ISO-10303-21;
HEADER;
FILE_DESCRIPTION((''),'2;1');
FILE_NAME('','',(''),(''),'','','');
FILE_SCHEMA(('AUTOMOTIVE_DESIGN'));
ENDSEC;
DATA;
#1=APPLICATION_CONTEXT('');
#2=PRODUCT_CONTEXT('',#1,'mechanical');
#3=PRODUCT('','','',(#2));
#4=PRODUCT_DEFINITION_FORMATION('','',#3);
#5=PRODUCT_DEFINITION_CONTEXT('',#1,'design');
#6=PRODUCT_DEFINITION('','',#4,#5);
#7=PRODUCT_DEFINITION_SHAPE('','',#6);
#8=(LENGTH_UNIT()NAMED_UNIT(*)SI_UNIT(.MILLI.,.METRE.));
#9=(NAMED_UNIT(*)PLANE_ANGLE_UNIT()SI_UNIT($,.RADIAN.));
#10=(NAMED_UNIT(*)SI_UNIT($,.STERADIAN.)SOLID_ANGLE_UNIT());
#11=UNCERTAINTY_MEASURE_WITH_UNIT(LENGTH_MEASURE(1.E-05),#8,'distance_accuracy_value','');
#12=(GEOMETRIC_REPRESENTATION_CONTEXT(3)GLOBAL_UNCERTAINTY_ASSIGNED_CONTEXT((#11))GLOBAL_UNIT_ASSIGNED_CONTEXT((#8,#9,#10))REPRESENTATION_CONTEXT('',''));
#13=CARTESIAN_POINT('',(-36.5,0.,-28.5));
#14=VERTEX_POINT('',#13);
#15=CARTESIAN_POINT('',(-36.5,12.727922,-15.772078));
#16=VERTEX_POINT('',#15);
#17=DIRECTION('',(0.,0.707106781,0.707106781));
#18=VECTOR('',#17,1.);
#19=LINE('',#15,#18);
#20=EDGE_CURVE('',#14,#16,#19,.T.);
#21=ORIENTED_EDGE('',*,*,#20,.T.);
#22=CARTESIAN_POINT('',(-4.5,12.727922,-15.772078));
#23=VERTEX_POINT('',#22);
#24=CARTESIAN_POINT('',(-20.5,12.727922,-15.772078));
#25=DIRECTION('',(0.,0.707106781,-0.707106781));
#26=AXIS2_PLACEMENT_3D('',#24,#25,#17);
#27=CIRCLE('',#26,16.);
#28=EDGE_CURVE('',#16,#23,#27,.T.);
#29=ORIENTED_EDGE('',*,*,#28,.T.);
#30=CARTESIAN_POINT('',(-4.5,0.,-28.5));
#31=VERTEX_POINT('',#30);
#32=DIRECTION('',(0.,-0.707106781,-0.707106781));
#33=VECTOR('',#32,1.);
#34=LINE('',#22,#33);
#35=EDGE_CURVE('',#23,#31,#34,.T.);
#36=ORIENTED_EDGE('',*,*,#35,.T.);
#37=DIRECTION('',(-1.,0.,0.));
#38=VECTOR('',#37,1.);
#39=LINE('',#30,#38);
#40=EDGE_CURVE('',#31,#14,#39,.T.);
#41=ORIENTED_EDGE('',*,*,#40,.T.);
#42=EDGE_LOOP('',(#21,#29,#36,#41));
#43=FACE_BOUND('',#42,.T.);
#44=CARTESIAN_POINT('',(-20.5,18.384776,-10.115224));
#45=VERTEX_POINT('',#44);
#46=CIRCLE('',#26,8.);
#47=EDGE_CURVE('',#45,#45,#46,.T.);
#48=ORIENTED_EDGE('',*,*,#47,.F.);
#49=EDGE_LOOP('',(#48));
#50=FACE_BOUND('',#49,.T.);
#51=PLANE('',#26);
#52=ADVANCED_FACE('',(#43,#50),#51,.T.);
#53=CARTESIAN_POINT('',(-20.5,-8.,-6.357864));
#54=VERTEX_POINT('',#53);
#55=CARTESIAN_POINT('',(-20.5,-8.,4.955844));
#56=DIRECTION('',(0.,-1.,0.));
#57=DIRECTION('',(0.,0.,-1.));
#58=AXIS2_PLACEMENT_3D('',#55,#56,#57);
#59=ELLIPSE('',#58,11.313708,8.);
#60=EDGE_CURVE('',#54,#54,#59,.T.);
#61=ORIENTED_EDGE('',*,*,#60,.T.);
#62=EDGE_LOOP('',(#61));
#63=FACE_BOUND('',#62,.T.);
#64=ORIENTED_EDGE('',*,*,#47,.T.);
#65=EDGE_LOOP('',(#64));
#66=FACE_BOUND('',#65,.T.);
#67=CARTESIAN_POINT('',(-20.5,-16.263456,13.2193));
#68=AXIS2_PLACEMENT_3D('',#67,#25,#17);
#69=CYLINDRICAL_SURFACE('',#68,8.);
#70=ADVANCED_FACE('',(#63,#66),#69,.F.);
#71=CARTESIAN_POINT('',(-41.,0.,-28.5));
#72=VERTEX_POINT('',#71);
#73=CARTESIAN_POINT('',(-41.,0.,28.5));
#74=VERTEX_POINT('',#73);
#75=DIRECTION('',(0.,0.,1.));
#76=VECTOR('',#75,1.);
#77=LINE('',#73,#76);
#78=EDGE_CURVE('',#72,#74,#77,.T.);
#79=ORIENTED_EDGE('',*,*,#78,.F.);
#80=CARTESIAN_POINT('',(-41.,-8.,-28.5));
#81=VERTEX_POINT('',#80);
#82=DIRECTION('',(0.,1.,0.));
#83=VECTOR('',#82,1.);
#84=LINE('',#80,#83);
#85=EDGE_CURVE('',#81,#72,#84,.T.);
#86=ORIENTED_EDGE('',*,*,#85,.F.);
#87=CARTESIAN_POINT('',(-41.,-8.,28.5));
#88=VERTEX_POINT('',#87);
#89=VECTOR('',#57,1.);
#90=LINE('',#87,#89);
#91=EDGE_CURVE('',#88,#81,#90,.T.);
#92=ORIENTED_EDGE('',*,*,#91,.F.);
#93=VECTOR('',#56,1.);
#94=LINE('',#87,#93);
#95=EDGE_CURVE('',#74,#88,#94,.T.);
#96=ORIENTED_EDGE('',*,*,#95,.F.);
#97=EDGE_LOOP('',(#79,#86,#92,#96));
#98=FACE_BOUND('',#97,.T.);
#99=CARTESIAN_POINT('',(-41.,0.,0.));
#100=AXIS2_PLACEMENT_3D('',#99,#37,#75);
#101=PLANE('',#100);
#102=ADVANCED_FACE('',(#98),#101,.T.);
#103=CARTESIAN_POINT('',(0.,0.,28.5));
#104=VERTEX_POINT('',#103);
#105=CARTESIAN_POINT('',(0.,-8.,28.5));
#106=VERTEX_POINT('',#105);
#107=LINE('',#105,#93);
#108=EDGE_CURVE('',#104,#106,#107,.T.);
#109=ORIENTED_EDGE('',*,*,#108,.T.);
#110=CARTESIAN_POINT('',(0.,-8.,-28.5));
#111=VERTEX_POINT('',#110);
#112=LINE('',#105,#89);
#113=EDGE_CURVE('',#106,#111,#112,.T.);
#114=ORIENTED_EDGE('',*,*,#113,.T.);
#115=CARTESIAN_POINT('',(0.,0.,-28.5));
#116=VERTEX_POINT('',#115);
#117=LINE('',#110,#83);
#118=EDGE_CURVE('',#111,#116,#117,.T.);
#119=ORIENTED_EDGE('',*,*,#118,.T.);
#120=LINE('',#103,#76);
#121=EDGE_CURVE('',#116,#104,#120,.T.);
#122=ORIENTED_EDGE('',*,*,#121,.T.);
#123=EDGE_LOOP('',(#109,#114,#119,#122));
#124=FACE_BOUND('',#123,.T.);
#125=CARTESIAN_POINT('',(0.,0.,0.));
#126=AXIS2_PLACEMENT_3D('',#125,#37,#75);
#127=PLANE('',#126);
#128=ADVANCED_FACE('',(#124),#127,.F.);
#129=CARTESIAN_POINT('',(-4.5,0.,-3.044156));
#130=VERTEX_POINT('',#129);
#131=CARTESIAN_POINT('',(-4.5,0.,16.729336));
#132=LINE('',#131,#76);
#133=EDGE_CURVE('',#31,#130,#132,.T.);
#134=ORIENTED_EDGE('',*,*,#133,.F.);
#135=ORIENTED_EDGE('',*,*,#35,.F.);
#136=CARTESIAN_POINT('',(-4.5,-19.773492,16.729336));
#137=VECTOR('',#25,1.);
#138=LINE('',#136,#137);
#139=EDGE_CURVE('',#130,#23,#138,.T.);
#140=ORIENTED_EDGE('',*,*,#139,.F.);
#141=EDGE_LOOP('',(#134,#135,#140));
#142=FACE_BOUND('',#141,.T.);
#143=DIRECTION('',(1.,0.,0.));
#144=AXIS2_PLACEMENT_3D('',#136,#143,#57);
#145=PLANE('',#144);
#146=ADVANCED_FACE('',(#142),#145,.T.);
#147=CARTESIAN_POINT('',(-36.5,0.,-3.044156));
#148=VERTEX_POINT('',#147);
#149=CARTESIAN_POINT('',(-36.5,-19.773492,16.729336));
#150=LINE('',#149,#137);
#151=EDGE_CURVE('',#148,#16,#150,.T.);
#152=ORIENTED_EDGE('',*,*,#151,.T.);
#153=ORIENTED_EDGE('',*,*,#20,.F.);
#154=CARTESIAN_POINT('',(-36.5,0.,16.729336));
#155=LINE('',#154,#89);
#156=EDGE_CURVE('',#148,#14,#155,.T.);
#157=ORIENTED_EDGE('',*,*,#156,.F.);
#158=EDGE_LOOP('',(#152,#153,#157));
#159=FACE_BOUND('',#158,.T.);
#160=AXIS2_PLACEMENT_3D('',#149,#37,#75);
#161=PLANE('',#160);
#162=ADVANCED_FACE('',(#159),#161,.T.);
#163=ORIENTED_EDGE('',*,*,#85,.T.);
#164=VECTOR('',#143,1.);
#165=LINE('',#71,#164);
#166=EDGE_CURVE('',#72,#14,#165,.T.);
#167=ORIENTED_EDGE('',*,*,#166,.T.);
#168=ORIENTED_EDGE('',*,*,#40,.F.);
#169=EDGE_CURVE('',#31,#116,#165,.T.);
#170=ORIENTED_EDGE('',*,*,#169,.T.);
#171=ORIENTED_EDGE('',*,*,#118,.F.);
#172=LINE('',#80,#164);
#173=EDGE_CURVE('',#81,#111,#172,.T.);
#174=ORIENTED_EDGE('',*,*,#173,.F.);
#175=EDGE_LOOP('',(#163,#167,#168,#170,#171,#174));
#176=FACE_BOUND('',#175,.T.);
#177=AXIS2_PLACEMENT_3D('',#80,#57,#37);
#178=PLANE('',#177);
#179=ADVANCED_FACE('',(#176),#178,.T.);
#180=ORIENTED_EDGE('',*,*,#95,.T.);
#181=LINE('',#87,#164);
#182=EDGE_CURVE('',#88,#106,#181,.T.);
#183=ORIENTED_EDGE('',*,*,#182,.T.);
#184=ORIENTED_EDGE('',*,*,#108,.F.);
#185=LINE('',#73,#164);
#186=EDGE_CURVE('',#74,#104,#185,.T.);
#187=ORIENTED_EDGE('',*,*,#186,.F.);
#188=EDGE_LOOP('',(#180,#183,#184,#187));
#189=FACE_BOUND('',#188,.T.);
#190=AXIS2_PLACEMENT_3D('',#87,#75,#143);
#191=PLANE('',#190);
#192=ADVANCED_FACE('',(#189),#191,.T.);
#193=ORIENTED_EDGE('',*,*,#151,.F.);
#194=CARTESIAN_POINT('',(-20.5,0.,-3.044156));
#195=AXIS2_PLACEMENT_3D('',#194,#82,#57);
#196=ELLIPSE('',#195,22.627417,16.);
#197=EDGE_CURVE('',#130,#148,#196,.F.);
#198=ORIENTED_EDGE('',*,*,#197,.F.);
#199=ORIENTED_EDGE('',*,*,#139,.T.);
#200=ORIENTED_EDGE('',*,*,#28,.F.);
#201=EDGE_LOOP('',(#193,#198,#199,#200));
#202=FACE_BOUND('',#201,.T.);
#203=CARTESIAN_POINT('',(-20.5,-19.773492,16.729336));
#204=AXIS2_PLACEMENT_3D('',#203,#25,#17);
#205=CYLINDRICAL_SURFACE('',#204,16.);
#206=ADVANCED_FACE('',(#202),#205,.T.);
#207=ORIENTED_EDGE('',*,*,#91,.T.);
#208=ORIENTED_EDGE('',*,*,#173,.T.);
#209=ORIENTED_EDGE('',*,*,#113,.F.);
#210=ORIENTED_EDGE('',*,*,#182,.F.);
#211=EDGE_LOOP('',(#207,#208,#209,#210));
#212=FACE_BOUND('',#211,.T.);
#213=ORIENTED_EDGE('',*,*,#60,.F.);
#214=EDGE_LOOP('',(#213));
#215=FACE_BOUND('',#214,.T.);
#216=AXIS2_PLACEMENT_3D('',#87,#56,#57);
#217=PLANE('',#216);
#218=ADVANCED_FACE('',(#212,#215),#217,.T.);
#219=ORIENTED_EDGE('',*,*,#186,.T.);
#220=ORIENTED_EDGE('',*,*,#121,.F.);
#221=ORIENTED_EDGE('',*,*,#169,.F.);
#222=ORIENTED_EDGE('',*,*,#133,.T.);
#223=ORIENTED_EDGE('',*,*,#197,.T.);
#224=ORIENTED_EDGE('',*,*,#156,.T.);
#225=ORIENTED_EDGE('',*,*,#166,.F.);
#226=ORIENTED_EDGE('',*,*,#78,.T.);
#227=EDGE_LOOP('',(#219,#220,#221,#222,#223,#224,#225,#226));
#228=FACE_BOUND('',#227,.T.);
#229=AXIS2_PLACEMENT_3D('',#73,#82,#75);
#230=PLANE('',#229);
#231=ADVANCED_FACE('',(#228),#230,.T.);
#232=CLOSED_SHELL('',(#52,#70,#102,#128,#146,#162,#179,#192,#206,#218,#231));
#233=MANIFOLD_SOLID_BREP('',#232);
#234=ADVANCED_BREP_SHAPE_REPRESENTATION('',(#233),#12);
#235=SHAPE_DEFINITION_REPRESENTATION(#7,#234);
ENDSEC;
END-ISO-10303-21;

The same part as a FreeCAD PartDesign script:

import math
import FreeCAD as App
import Part
import Sketcher
from FreeCAD import Vector

doc = App.newDocument("Part")
params = doc.addObject("Spreadsheet::Sheet", "Params")
for row, (alias, value) in enumerate([
    ("sketch1_width", "8 mm"),
    ("sketch1_height", "57 mm"),
    ("pad1_length", "41 mm"),
    ("sketch2_radius", "16 mm"),
    ("sketch2_height", "18 mm"),
    ("sketch3_diameter", "16 mm"),
    ("pocket1_length", "41 mm"),
], start=1):
    params.set(f"A{row}", alias)
    params.set(f"B{row}", "=" + value)
    params.setAlias(f"B{row}", alias)

body = doc.addObject("PartDesign::Body", "Body")

sketch1 = body.newObject("Sketcher::SketchObject", "Sketch")
sketch1.AttachmentSupport = (doc.getObject("YZ_Plane"), [""])
sketch1.MapMode = "FlatFace"
sketch1.addGeometry(Part.LineSegment(Vector(0, 28.5, 0), Vector(-8, 28.5, 0)), False)
sketch1.addGeometry(Part.LineSegment(Vector(-8, 28.5, 0), Vector(-8, -28.5, 0)), False)
sketch1.addGeometry(Part.LineSegment(Vector(-8, -28.5, 0), Vector(0, -28.5, 0)), False)
sketch1.addGeometry(Part.LineSegment(Vector(0, -28.5, 0), Vector(0, 28.5, 0)), False)
sketch1.addConstraint(Sketcher.Constraint("Coincident", 0, 2, 1, 1))
sketch1.addConstraint(Sketcher.Constraint("Coincident", 1, 2, 2, 1))
sketch1.addConstraint(Sketcher.Constraint("Coincident", 2, 2, 3, 1))
sketch1.addConstraint(Sketcher.Constraint("Coincident", 3, 2, 0, 1))
sketch1.addConstraint(Sketcher.Constraint("Horizontal", 0))
sketch1.addConstraint(Sketcher.Constraint("Vertical", 1))
sketch1.addConstraint(Sketcher.Constraint("Horizontal", 2))
sketch1.addConstraint(Sketcher.Constraint("Vertical", 3))
sketch1.addConstraint(Sketcher.Constraint("Symmetric", 2, 2, 3, 2, -1, 1))
sketch1.addConstraint(Sketcher.Constraint("DistanceX", 0, 2, 0, 1, 8.0))
sketch1.addConstraint(Sketcher.Constraint("DistanceY", 1, 2, 1, 1, 57.0))
sketch1.setExpression("Constraints[9]", "Params.sketch1_width")
sketch1.setExpression("Constraints[10]", "Params.sketch1_height")
pad1 = body.newObject("PartDesign::Pad", "Pad")
pad1.Profile = sketch1
pad1.setExpression("Length", "Params.pad1_length")
pad1.Reversed = True

sketch2 = body.newObject("Sketcher::SketchObject", "Sketch001")
sketch2.Placement = App.Placement(Vector(0, 14.25, -14.25), App.Rotation(Vector(1, 0, 0), Vector(0, -0.707106781, -0.707106781), Vector(0, 0.707106781, -0.707106781), "ZXY"))
sketch2.addGeometry(Part.LineSegment(Vector(-36.5, 20.152543, 0), Vector(-36.5, 2.152543, 0)), False)
sketch2.addGeometry(Part.ArcOfCircle(Part.Circle(Vector(-20.5, 2.152543, 0), Vector(0, 0, 1), 16), math.radians(180), math.radians(360)), False)
sketch2.addGeometry(Part.LineSegment(Vector(-4.5, 2.152543, 0), Vector(-4.5, 20.152543, 0)), False)
sketch2.addGeometry(Part.LineSegment(Vector(-4.5, 20.152543, 0), Vector(-36.5, 20.152543, 0)), False)
sketch2.addConstraint(Sketcher.Constraint("Tangent", 0, 2, 1, 1))
sketch2.addConstraint(Sketcher.Constraint("Tangent", 1, 2, 2, 1))
sketch2.addConstraint(Sketcher.Constraint("Coincident", 2, 2, 3, 1))
sketch2.addConstraint(Sketcher.Constraint("Coincident", 3, 2, 0, 1))
sketch2.addConstraint(Sketcher.Constraint("Vertical", 0))
sketch2.addConstraint(Sketcher.Constraint("Vertical", 2))
sketch2.addConstraint(Sketcher.Constraint("Horizontal", 3))
sketch2.addConstraint(Sketcher.Constraint("Radius", 1, 16.0))
sketch2.addConstraint(Sketcher.Constraint("DistanceY", 0, 2, 0, 1, 18.0))
sketch2.addConstraint(Sketcher.Constraint("DistanceX", 1, 3, -1, 1, 20.5))
sketch2.addConstraint(Sketcher.Constraint("DistanceY", -1, 1, 1, 3, 2.152543))
sketch2.setExpression("Constraints[7]", "Params.sketch2_radius")
sketch2.setExpression("Constraints[8]", "Params.sketch2_height")
pad2 = body.newObject("PartDesign::Pad", "Pad001")
pad2.Profile = sketch2
pad2.Type = "UpToFirst"
pad2.Reversed = True

sketch3 = body.newObject("Sketcher::SketchObject", "Sketch002")
sketch3.Placement = App.Placement(Vector(0, 14.25, -14.25), App.Rotation(Vector(1, 0, 0), Vector(0, -0.707106781, -0.707106781), Vector(0, 0.707106781, -0.707106781), "ZXY"))
sketch3.addGeometry(Part.Circle(Vector(-20.5, 2.152543, 0), Vector(0, 0, 1), 8), False)
sketch3.addConstraint(Sketcher.Constraint("Diameter", 0, 16.0))
sketch3.addConstraint(Sketcher.Constraint("DistanceX", 0, 3, -1, 1, 20.5))
sketch3.addConstraint(Sketcher.Constraint("DistanceY", -1, 1, 0, 3, 2.152543))
sketch3.setExpression("Constraints[0]", "Params.sketch3_diameter")
pocket1 = body.newObject("PartDesign::Pocket", "Pocket")
pocket1.Profile = sketch3
pocket1.setExpression("Length", "Params.pocket1_length")

doc.recompute()
